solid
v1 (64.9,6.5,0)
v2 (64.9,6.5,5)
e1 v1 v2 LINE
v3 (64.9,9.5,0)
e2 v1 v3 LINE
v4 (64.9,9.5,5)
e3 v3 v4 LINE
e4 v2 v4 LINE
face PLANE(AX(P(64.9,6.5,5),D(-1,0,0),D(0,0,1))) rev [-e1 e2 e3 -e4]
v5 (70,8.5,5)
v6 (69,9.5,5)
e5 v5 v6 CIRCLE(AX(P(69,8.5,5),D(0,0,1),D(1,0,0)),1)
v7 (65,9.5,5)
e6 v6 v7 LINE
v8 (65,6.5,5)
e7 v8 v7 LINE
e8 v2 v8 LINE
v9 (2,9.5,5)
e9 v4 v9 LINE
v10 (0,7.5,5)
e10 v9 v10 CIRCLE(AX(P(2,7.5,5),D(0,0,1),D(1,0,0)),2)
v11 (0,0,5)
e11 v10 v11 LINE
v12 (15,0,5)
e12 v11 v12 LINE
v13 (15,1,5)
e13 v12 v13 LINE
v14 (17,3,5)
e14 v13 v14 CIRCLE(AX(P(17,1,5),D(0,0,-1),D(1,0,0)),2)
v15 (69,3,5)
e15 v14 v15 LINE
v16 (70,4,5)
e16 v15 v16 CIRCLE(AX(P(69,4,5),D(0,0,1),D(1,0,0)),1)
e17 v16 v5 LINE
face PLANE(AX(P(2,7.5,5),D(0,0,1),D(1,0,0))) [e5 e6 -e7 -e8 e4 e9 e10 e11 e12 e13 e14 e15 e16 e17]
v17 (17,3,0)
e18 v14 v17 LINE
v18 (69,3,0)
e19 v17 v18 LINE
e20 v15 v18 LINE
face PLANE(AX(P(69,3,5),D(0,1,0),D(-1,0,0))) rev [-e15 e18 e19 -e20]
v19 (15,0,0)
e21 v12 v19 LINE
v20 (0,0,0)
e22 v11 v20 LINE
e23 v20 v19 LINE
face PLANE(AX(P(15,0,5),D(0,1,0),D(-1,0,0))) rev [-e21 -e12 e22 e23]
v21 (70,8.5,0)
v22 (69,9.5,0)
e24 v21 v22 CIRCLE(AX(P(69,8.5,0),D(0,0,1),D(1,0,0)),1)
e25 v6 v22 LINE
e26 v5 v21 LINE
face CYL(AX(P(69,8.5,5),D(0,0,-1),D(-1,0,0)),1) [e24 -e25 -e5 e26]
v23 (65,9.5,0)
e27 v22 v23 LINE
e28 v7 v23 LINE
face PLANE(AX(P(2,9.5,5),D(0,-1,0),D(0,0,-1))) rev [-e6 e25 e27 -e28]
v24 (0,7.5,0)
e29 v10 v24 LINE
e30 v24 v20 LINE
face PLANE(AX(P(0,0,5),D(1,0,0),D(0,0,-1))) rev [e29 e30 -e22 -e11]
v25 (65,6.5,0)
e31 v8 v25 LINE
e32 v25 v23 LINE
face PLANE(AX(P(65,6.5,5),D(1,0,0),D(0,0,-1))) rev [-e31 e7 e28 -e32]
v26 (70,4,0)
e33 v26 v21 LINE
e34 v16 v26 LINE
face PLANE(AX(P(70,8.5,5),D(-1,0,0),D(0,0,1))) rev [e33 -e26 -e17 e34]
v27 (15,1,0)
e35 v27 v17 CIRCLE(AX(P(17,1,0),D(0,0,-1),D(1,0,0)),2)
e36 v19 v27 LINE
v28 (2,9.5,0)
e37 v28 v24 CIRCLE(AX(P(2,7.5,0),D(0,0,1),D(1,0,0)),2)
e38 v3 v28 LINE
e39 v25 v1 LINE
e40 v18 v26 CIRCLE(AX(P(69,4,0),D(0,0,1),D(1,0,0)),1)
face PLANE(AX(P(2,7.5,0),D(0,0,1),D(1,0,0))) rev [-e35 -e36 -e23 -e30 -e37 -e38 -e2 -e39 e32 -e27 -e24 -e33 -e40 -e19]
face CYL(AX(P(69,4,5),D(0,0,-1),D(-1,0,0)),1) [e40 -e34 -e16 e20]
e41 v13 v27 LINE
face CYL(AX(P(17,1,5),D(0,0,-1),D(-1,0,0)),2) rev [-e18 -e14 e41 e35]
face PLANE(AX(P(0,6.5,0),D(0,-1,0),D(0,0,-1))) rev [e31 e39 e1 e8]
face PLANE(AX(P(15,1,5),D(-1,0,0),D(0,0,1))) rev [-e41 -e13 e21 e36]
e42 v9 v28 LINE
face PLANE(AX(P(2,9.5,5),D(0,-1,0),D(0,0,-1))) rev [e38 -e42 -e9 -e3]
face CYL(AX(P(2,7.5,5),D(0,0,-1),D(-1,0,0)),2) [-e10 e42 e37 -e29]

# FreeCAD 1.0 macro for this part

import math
import FreeCAD as App
import Part
import Sketcher

V = App.Vector


def add_polygon(sketch, points):
    """Adds a closed chain of lines whose ends are joined by coincident constraints."""
    first, n = sketch.GeometryCount, len(points)
    for a, b in zip(points, points[1:] + points[:1]):
        sketch.addGeometry(Part.LineSegment(App.Vector(*a, 0), App.Vector(*b, 0)), False)
    for i in range(n):
        sketch.addConstraint(Sketcher.Constraint("Coincident", first + i, 2, first + (i + 1) % n, 1))

doc = App.newDocument("Part")
body = doc.addObject("PartDesign::Body", "Body")

# Sketch on XY plane
sketch1 = body.newObject("Sketcher::SketchObject", "Sketch")
sketch1.AttachmentSupport = (doc.getObject("XY_Plane"), [""])
sketch1.MapMode = "FlatFace"
sketch1.addGeometry(Part.LineSegment(V(0, 7.5, 0), V(0, 0, 0)), False)
sketch1.addGeometry(Part.LineSegment(V(0, 0, 0), V(15, 0, 0)), False)
sketch1.addGeometry(Part.LineSegment(V(15, 0, 0), V(15, 1, 0)), False)
sketch1.addGeometry(Part.ArcOfCircle(Part.Circle(V(17, 1, 0), V(0, 0, 1), 2), math.radians(90), math.radians(180)), False)
sketch1.addGeometry(Part.LineSegment(V(17, 3, 0), V(69, 3, 0)), False)
sketch1.addGeometry(Part.ArcOfCircle(Part.Circle(V(69, 4, 0), V(0, 0, 1), 1), math.radians(-90), math.radians(0)), False)
sketch1.addGeometry(Part.LineSegment(V(70, 4, 0), V(70, 8.5, 0)), False)
sketch1.addGeometry(Part.ArcOfCircle(Part.Circle(V(69, 8.5, 0), V(0, 0, 1), 1), math.radians(0), math.radians(90)), False)
sketch1.addGeometry(Part.LineSegment(V(69, 9.5, 0), V(2, 9.5, 0)), False)
sketch1.addGeometry(Part.ArcOfCircle(Part.Circle(V(2, 7.5, 0), V(0, 0, 1), 2), math.radians(90), math.radians(180)), False)
sketch1.addConstraint(Sketcher.Constraint("Coincident", 0, 2, 1, 1))
sketch1.addConstraint(Sketcher.Constraint("Coincident", 1, 2, 2, 1))
sketch1.addConstraint(Sketcher.Constraint("Tangent", 2, 2, 3, 2))
sketch1.addConstraint(Sketcher.Constraint("Tangent", 3, 1, 4, 1))
sketch1.addConstraint(Sketcher.Constraint("Tangent", 4, 2, 5, 1))
sketch1.addConstraint(Sketcher.Constraint("Tangent", 5, 2, 6, 1))
sketch1.addConstraint(Sketcher.Constraint("Tangent", 6, 2, 7, 1))
sketch1.addConstraint(Sketcher.Constraint("Tangent", 7, 2, 8, 1))
sketch1.addConstraint(Sketcher.Constraint("Tangent", 8, 2, 9, 1))
sketch1.addConstraint(Sketcher.Constraint("Tangent", 9, 2, 0, 1))
sketch1.addConstraint(Sketcher.Constraint("Vertical", 0))
sketch1.addConstraint(Sketcher.Constraint("Horizontal", 1))
sketch1.addConstraint(Sketcher.Constraint("Vertical", 2))
sketch1.addConstraint(Sketcher.Constraint("Horizontal", 4))
sketch1.addConstraint(Sketcher.Constraint("Vertical", 6))
sketch1.addConstraint(Sketcher.Constraint("Horizontal", 8))
sketch1.addConstraint(Sketcher.Constraint("Coincident", 0, 2, -1, 1))
sketch1.addConstraint(Sketcher.Constraint("Equal", 5, 7))
sketch1.addConstraint(Sketcher.Constraint("Equal", 3, 9))
sketch1.addConstraint(Sketcher.Constraint("Radius", 3, 2.0))
sketch1.addConstraint(Sketcher.Constraint("Radius", 5, 1.0))
sketch1.addConstraint(Sketcher.Constraint("DistanceX", 1, 1, 1, 2, 15.0))
sketch1.addConstraint(Sketcher.Constraint("DistanceX", 4, 1, 4, 2, 52.0))
sketch1.addConstraint(Sketcher.Constraint("DistanceY", 2, 1, 2, 2, 1.0))
sketch1.addConstraint(Sketcher.Constraint("DistanceY", 0, 2, 0, 1, 7.5))
pad1 = body.newObject("PartDesign::Pad", "Pad")
pad1.Profile = sketch1
pad1.Length = 5

# Sketch on XZ plane
sketch2 = body.newObject("Sketcher::SketchObject", "Sketch001")
sketch2.AttachmentSupport = (doc.getObject("XZ_Plane"), [""])
sketch2.MapMode = "FlatFace"
sketch2.AttachmentOffset = App.Placement(V(0, 0, -9.5), App.Rotation())
add_polygon(sketch2, [(64.9, 0), (64.9, 5), (65, 5), (65, 0)])  # lines 0-3
sketch2.addConstraint(Sketcher.Constraint("Vertical", 0))
sketch2.addConstraint(Sketcher.Constraint("Horizontal", 1))
sketch2.addConstraint(Sketcher.Constraint("Vertical", 2))
sketch2.addConstraint(Sketcher.Constraint("Horizontal", 3))
sketch2.addConstraint(Sketcher.Constraint("PointOnObject", 2, 2, -1))
sketch2.addConstraint(Sketcher.Constraint("DistanceY", 0, 1, 0, 2, 5.0))
sketch2.addConstraint(Sketcher.Constraint("DistanceX", 1, 1, 1, 2, 0.1))
sketch2.addConstraint(Sketcher.Constraint("DistanceX", -1, 1, 1, 2, 65.0))
pocket1 = body.newObject("PartDesign::Pocket", "Pocket")
pocket1.Profile = sketch2
pocket1.Length = 3
pocket1.Reversed = True

doc.recompute()
